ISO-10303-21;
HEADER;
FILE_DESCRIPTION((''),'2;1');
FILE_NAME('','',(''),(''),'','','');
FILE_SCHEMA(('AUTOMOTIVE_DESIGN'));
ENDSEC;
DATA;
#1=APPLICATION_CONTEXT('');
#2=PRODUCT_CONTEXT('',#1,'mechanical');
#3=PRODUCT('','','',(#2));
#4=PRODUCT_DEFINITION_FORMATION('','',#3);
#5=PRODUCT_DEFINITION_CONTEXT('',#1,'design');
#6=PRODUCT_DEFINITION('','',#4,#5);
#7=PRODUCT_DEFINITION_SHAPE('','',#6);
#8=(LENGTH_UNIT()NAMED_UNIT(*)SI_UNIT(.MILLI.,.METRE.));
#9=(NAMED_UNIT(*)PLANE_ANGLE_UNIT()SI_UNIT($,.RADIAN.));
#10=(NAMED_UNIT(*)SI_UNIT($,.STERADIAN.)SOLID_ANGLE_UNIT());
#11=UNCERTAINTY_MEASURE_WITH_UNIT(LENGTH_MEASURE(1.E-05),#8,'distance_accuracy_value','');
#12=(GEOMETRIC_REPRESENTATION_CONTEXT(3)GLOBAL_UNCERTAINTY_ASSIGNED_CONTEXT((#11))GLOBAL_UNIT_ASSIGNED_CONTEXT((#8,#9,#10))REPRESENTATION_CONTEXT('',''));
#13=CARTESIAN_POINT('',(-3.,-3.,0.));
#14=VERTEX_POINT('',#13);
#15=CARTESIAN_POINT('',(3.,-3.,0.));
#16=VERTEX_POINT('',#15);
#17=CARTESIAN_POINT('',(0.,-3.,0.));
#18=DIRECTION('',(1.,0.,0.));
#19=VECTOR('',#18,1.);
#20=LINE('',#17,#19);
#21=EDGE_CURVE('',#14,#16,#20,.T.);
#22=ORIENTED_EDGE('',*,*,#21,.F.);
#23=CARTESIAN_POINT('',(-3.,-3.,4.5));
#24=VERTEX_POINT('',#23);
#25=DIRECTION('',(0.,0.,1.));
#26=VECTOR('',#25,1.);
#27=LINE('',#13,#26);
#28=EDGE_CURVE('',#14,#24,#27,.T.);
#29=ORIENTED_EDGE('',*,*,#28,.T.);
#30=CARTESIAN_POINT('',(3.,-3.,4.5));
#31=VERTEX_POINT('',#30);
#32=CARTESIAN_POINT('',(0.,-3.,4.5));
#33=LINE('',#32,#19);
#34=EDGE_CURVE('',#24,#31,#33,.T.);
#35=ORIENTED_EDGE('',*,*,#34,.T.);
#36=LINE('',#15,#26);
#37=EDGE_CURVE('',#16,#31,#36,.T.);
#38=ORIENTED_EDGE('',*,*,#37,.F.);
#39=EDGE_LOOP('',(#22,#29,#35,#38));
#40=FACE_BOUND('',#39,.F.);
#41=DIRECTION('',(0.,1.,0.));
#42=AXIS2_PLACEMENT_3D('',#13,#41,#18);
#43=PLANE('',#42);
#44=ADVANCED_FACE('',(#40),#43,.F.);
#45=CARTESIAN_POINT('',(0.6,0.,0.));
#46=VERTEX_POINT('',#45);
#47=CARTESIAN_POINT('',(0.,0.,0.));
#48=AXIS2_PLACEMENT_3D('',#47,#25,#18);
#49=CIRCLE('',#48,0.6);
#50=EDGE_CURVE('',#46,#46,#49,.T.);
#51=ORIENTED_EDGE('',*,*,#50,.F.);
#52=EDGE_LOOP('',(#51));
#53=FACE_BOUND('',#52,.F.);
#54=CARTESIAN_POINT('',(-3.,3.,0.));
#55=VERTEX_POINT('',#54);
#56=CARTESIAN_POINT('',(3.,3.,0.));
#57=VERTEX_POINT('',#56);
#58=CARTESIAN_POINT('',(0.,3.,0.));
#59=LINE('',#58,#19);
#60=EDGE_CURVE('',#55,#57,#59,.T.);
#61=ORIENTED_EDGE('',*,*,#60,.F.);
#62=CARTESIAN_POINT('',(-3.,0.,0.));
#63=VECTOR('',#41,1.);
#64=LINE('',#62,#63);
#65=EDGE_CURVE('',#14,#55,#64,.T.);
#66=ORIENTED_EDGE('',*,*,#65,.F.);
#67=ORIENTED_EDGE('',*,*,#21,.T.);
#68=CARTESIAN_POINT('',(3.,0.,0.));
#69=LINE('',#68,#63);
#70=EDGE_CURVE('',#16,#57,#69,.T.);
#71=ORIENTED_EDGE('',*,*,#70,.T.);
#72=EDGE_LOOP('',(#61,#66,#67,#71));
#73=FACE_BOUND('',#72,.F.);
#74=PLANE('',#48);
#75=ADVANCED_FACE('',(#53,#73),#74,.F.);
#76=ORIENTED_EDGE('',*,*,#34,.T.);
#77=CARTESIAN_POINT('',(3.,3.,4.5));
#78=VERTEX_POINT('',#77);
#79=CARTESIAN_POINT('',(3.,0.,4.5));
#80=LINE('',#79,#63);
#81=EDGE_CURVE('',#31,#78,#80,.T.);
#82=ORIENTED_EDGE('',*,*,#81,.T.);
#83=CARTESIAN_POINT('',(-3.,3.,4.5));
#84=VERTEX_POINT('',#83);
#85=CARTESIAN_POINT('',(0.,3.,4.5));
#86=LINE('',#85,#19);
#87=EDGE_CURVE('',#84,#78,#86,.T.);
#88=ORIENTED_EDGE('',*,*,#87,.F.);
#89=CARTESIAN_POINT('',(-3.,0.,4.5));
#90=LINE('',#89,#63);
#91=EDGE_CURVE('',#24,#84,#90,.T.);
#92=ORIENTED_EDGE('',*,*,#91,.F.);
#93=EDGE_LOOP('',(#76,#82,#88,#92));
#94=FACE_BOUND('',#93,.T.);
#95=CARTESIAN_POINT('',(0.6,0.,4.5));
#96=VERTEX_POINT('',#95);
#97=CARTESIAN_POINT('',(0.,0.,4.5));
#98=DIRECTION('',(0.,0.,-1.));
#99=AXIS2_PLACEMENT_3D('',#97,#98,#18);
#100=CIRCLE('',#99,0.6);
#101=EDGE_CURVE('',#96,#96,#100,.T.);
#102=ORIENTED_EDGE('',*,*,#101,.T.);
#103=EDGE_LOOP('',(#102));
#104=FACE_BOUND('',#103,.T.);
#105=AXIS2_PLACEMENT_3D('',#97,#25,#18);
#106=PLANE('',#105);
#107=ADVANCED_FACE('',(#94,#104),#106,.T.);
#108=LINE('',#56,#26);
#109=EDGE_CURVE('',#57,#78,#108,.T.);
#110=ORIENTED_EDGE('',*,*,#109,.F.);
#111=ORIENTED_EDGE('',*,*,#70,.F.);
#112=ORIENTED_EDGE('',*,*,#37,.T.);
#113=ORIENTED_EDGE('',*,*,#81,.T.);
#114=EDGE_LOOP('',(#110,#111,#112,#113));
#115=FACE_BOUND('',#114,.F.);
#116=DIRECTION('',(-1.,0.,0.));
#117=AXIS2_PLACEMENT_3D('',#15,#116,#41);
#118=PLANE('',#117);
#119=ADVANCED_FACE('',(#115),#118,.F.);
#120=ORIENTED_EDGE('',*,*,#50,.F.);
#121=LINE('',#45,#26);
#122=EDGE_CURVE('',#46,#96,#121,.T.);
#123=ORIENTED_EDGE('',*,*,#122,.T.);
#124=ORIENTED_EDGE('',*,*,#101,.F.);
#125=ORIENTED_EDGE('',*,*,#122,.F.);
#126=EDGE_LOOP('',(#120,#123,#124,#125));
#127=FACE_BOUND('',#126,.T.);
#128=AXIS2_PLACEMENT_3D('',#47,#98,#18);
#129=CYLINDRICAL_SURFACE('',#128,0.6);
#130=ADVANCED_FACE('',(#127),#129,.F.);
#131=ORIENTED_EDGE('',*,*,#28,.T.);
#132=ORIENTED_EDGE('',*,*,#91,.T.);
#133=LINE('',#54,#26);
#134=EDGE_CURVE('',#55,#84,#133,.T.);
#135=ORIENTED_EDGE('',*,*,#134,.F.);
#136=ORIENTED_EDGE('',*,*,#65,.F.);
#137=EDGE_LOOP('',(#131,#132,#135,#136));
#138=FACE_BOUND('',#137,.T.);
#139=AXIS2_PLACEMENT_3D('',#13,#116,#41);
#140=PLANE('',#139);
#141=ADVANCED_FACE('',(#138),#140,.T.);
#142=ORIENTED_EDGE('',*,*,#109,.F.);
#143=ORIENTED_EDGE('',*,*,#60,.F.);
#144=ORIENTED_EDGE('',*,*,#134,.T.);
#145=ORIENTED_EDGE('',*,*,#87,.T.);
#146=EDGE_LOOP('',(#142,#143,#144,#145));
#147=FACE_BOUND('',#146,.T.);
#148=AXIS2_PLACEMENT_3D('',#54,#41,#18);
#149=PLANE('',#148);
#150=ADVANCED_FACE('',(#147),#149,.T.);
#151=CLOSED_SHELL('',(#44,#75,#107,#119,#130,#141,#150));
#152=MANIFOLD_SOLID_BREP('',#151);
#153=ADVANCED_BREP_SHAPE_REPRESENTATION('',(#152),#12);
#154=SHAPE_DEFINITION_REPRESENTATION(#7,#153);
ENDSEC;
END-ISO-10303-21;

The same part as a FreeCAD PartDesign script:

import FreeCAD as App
import Part
import Sketcher


def add_polygon(sketch, points):
    """Adds a closed chain of lines whose ends are joined by coincident constraints."""
    first, n = sketch.GeometryCount, len(points)
    for a, b in zip(points, points[1:] + points[:1]):
        sketch.addGeometry(Part.LineSegment(App.Vector(*a, 0), App.Vector(*b, 0)), False)
    for i in range(n):
        sketch.addConstraint(Sketcher.Constraint("Coincident", first + i, 2, first + (i + 1) % n, 1))

doc = App.newDocument("Part")
body = doc.addObject("PartDesign::Body", "Body")

# Sketch on XY plane
sketch1 = body.newObject("Sketcher::SketchObject", "Sketch")
sketch1.AttachmentSupport = (doc.getObject("XY_Plane"), [""])
sketch1.MapMode = "FlatFace"
sketch1.addGeometry(Part.Circle(App.Vector(0, 0, 0), App.Vector(0, 0, 1), 0.6), False)
sketch1.addConstraint(Sketcher.Constraint("Coincident", 0, 3, -1, 1))
sketch1.addConstraint(Sketcher.Constraint("Diameter", 0, 1.2))
pad1 = body.newObject("PartDesign::Pad", "Pad")
pad1.Profile = sketch1
pad1.Length = 10
body2 = doc.addObject("PartDesign::Body", "Body001")

# Sketch on XY plane
sketch2 = body2.newObject("Sketcher::SketchObject", "Sketch001")
sketch2.AttachmentSupport = (doc.getObject("XY_Plane001"), [""])
sketch2.MapMode = "FlatFace"
add_polygon(sketch2, [(-3, 3), (-3, -3), (3, -3), (3, 3)])  # lines 0-3
sketch2.addConstraint(Sketcher.Constraint("Vertical", 0))
sketch2.addConstraint(Sketcher.Constraint("Horizontal", 1))
sketch2.addConstraint(Sketcher.Constraint("Vertical", 2))
sketch2.addConstraint(Sketcher.Constraint("Horizontal", 3))
sketch2.addConstraint(Sketcher.Constraint("Symmetric", 0, 2, 2, 2, -1, 1))
sketch2.addConstraint(Sketcher.Constraint("Equal", 3, 0))
sketch2.addConstraint(Sketcher.Constraint("DistanceX", 1, 1, 1, 2, 6.0))
pad2 = body2.newObject("PartDesign::Pad", "Pad001")
pad2.Profile = sketch2
pad2.Length = 4.5
doc.recompute()

boolean = body2.newObject("PartDesign::Boolean", "Boolean")
boolean.Type = "Cut"
boolean.addObjects([body])

doc.recompute()
